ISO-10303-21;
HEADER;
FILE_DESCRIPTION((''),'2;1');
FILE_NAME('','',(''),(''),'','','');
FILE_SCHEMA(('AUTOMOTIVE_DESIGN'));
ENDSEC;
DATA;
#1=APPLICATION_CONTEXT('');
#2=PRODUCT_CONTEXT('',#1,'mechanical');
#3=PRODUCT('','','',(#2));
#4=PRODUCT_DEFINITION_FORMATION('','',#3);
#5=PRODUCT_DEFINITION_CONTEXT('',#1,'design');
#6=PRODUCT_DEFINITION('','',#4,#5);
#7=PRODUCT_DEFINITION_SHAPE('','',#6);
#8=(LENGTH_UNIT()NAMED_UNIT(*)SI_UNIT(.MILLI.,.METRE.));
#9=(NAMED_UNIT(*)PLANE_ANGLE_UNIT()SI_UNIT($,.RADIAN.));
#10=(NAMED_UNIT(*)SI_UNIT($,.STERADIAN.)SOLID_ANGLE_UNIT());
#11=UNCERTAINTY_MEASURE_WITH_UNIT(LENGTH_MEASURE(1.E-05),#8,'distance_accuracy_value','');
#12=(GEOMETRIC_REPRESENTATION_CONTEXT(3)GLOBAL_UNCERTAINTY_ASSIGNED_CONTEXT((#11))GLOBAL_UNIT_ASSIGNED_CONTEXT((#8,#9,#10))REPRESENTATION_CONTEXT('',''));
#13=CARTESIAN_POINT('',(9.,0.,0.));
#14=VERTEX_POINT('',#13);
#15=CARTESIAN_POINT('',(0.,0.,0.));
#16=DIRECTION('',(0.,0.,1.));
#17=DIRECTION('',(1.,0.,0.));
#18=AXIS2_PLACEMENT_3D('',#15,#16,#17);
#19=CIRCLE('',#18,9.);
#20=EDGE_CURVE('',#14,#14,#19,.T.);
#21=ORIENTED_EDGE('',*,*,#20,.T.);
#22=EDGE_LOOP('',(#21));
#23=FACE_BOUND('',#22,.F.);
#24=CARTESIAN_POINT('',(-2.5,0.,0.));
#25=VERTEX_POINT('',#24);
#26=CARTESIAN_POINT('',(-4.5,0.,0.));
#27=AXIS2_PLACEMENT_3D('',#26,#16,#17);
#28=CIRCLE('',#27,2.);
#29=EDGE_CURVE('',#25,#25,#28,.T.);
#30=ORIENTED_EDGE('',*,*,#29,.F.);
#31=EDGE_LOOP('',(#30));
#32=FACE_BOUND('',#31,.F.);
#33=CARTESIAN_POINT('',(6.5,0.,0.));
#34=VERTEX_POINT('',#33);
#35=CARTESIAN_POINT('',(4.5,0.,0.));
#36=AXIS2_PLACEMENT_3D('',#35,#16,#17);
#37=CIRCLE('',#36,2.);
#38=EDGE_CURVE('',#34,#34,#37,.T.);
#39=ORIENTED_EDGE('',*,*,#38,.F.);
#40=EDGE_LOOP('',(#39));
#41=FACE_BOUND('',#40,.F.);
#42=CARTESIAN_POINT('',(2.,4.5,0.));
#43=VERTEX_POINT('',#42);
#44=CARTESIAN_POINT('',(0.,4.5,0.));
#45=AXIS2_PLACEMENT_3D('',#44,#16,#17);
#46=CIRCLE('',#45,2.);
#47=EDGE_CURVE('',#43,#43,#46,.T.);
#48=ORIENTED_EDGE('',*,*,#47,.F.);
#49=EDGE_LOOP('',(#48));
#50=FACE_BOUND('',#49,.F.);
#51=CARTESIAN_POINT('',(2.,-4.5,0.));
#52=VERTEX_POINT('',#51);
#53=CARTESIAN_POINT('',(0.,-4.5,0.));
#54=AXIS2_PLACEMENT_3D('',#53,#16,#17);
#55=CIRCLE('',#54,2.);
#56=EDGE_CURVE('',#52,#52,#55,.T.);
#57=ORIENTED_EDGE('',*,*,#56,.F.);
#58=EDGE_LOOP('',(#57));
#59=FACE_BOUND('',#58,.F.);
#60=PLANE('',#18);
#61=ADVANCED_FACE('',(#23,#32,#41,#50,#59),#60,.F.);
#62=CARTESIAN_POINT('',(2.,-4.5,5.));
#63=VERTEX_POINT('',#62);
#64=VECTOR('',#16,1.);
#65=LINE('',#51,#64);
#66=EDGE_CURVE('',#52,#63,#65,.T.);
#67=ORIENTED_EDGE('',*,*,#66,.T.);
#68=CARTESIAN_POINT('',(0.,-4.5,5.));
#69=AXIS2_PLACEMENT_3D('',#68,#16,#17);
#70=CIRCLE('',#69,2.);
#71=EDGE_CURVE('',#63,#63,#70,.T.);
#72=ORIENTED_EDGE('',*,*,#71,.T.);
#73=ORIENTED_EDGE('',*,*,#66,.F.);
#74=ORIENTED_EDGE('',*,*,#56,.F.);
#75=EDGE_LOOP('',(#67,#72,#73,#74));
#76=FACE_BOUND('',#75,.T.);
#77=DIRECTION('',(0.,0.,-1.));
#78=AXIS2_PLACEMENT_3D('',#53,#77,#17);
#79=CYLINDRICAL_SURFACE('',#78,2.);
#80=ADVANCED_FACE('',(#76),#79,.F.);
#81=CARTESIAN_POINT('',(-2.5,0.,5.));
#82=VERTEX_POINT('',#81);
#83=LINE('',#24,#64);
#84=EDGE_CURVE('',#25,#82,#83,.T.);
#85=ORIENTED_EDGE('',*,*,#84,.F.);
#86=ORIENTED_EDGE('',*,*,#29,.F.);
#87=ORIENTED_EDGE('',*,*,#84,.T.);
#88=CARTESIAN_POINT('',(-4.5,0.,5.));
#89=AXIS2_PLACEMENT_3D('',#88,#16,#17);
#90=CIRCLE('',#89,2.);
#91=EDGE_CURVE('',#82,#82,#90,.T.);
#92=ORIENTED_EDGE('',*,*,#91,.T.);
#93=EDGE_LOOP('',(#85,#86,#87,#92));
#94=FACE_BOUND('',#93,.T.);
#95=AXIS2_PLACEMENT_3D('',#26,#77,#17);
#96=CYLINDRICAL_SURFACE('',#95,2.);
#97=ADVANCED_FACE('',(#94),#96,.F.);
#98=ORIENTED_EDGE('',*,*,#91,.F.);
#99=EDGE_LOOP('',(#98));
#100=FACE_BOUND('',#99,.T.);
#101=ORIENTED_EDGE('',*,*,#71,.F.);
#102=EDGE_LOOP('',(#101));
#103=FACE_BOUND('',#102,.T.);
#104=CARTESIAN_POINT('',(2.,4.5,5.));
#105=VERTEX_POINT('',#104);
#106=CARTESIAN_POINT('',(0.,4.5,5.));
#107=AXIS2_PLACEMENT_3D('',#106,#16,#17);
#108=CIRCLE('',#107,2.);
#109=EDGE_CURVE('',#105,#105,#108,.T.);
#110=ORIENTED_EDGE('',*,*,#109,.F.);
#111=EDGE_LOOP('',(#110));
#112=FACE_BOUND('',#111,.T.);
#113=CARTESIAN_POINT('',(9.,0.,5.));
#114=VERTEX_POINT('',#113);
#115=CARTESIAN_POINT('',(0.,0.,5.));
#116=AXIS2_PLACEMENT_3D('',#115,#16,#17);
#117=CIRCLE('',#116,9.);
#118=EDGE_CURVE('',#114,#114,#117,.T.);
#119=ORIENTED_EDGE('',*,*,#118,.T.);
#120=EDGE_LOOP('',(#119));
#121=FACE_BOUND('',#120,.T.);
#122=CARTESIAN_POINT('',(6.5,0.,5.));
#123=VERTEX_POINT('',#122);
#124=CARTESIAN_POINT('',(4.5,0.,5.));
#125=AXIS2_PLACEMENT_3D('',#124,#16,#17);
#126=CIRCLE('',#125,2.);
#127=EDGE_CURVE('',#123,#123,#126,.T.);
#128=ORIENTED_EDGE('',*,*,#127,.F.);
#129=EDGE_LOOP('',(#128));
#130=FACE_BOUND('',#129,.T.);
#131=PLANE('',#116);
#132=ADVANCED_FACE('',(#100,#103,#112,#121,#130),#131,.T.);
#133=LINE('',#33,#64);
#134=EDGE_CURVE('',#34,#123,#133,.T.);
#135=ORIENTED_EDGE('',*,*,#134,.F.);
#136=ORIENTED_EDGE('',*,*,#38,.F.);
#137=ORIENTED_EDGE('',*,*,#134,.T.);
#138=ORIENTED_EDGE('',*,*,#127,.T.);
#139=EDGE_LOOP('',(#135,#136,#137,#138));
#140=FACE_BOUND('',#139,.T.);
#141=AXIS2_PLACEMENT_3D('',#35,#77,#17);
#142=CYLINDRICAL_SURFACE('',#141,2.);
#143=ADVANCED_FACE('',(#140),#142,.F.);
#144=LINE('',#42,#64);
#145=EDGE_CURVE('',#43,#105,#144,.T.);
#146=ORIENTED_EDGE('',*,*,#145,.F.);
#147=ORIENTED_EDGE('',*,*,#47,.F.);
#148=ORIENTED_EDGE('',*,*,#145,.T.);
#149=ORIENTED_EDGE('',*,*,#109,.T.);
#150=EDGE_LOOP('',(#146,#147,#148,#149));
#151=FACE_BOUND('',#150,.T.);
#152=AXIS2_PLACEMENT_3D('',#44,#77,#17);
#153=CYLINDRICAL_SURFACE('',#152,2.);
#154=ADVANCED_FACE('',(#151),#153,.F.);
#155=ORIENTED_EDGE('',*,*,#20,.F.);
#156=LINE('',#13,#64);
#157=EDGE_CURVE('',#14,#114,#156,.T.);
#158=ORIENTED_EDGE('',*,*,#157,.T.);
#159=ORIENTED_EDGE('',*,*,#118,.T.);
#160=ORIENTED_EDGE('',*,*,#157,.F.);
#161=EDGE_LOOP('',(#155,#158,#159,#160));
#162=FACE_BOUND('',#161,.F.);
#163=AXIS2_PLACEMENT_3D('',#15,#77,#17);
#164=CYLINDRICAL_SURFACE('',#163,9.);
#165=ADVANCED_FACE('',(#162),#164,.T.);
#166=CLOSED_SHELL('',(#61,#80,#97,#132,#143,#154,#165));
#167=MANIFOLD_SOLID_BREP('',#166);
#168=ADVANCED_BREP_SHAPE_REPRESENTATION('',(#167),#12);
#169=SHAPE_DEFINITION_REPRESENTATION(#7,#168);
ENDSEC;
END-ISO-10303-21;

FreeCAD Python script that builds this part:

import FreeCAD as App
import Part
import Sketcher
from FreeCAD import Vector
Q = App.Units.Quantity

doc = App.newDocument("Part")
params = doc.addObject("Spreadsheet::Sheet", "Params")
for row, (alias, value) in enumerate([
    ("sketch1_diameter", "18 mm"),
    ("sketch1_diameter2", "4 mm"),
    ("pad1_length", "5 mm"),
], start=1):
    params.set(f"A{row}", alias)
    params.set(f"B{row}", "=" + value)
    params.setAlias(f"B{row}", alias)

body = doc.addObject("PartDesign::Body", "Body")

# Sketch on XY plane
sketch1 = body.newObject("Sketcher::SketchObject", "Sketch")
sketch1.AttachmentSupport = (doc.getObject("XY_Plane"), [""])
sketch1.MapMode = "FlatFace"
sketch1.addGeometry(Part.Circle(Vector(0, 0, 0), Vector(0, 0, 1), 9), False)
sketch1.addGeometry(Part.Circle(Vector(0, -4.5, 0), Vector(0, 0, 1), 2), False)
sketch1.addGeometry(Part.Circle(Vector(-4.5, 0, 0), Vector(0, 0, 1), 2), False)
sketch1.addGeometry(Part.Circle(Vector(4.5, 0, 0), Vector(0, 0, 1), 2), False)
sketch1.addGeometry(Part.Circle(Vector(0, 4.5, 0), Vector(0, 0, 1), 2), False)
sketch1.addConstraint(Sketcher.Constraint("Coincident", 0, 3, -1, 1))
sketch1.addConstraint(Sketcher.Constraint("Equal", 1, 2))
sketch1.addConstraint(Sketcher.Constraint("Equal", 2, 3))
sketch1.addConstraint(Sketcher.Constraint("Equal", 3, 4))
sketch1.addConstraint(Sketcher.Constraint("Symmetric", 2, 3, 3, 3, -1, 1))
sketch1.addConstraint(Sketcher.Constraint("Symmetric", 1, 3, 4, 3, -1, 1))
sketch1.addConstraint(Sketcher.Constraint("PointOnObject", 1, 3, -2))
sketch1.addConstraint(Sketcher.Constraint("PointOnObject", 2, 3, -1))
sketch1.addConstraint(Sketcher.Constraint("Diameter", 0, Q("18 mm")))
sketch1.addConstraint(Sketcher.Constraint("Diameter", 1, Q("4 mm")))
sketch1.addConstraint(Sketcher.Constraint("DistanceX", 2, 3, 3, 3, Q("9 mm")))
sketch1.addConstraint(Sketcher.Constraint("DistanceY", 1, 3, 4, 3, Q("9 mm")))
sketch1.setExpression("Constraints[8]", "Params.sketch1_diameter")
sketch1.setExpression("Constraints[9]", "Params.sketch1_diameter2")
pad1 = body.newObject("PartDesign::Pad", "Pad")
pad1.Profile = sketch1
pad1.setExpression("Length", "Params.pad1_length")

doc.recompute()
